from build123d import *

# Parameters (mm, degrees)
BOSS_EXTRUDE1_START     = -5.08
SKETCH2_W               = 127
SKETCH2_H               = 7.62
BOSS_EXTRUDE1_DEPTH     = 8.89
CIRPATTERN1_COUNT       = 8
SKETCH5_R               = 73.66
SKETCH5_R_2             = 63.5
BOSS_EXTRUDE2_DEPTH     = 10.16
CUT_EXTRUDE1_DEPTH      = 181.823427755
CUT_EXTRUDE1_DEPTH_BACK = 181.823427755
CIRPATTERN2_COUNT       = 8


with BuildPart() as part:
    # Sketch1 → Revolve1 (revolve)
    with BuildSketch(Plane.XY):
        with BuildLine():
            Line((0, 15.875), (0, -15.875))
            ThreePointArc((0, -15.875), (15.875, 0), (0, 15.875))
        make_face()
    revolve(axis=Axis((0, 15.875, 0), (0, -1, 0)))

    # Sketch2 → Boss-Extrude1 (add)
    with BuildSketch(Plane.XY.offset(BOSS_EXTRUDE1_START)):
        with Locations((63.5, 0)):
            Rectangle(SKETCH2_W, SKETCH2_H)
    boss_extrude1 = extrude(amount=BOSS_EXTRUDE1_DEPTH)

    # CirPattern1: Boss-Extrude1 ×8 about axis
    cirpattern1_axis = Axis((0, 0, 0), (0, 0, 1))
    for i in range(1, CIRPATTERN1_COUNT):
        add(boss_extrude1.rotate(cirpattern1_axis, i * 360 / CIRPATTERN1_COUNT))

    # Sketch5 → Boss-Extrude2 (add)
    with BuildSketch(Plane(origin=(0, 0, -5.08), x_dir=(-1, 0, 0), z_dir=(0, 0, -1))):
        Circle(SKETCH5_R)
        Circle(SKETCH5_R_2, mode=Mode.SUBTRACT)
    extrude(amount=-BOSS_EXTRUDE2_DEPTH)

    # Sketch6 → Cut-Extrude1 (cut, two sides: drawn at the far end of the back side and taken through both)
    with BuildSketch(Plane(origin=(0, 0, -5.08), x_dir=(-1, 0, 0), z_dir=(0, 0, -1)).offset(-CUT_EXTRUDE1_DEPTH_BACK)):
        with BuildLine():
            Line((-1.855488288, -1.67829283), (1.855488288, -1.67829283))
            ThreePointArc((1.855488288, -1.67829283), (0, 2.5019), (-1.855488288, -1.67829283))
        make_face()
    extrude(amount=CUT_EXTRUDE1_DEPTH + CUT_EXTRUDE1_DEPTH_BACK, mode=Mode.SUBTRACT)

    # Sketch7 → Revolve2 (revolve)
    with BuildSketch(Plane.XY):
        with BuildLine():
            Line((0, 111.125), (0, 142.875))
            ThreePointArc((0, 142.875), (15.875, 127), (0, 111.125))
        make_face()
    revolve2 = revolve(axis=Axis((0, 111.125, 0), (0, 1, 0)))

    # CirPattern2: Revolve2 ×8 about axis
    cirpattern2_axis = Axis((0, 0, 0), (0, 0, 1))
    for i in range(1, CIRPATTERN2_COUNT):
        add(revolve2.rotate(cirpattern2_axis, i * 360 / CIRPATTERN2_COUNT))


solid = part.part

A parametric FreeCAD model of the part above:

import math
import FreeCAD as App
import Part
import Sketcher
Q = App.Units.Quantity


def add_polygon(sketch, points):
    """Adds a closed chain of lines whose ends are joined by coincident constraints."""
    first, n = sketch.GeometryCount, len(points)
    for a, b in zip(points, points[1:] + points[:1]):
        sketch.addGeometry(Part.LineSegment(App.Vector(*a, 0), App.Vector(*b, 0)), False)
    for i in range(n):
        sketch.addConstraint(Sketcher.Constraint("Coincident", first + i, 2, first + (i + 1) % n, 1))

doc = App.newDocument("Part")
body = doc.addObject("PartDesign::Body", "Body")

sketch1 = body.newObject("Sketcher::SketchObject", "Sketch")
sketch1.AttachmentSupport = (doc.getObject("XY_Plane"), [""])
sketch1.MapMode = "FlatFace"
sketch1.addGeometry(Part.LineSegment(App.Vector(0, 16, 0), App.Vector(0, -16, 0)), False)
sketch1.addGeometry(Part.ArcOfCircle(Part.Circle(App.Vector(0, 0, 0), App.Vector(0, 0, 1), 16), math.radians(-90), math.radians(90)), False)
sketch1.addConstraint(Sketcher.Constraint("Coincident", 0, 1, 1, 2))
sketch1.addConstraint(Sketcher.Constraint("Coincident", 1, 1, 0, 2))
sketch1.addConstraint(Sketcher.Constraint("Vertical", 0))
sketch1.addConstraint(Sketcher.Constraint("Coincident", 1, 3, -1, 1))
sketch1.addConstraint(Sketcher.Constraint("PointOnObject", 0, 1, -2))
sketch1.addConstraint(Sketcher.Constraint("Radius", 1, Q("0.625 in")))
revolution = body.newObject("PartDesign::Revolution", "Revolution")
revolution.Profile = sketch1
revolution.ReferenceAxis = (sketch1, ["V_Axis"])
revolution.Angle = 360

sketch2 = body.newObject("Sketcher::SketchObject", "Sketch001")
sketch2.AttachmentSupport = (doc.getObject("XY_Plane"), [""])
sketch2.MapMode = "FlatFace"
sketch2.AttachmentOffset = App.Placement(App.Vector(0, 0, -0.2 * 25.4), App.Rotation())
add_polygon(sketch2, [(0, 4), (0, -4), (127, -4), (127, 4)])
sketch2.addConstraint(Sketcher.Constraint("Vertical", 0))
sketch2.addConstraint(Sketcher.Constraint("Horizontal", 1))
sketch2.addConstraint(Sketcher.Constraint("Vertical", 2))
sketch2.addConstraint(Sketcher.Constraint("Horizontal", 3))
sketch2.addConstraint(Sketcher.Constraint("Symmetric", 0, 2, 3, 2, -1, 1))
sketch2.addConstraint(Sketcher.Constraint("DistanceX", 1, 1, 1, 2, Q("5 in")))
sketch2.addConstraint(Sketcher.Constraint("DistanceY", 0, 2, 0, 1, Q("0.3 in")))
pad1 = body.newObject("PartDesign::Pad", "Pad")
pad1.Profile = sketch2
pad1.Length = Q("0.35 in")
doc.recompute()

polarpattern = body.newObject("PartDesign::PolarPattern", "PolarPattern")
polarpattern.Originals = [pad1]
polarpattern.Axis = (doc.getObject("Z_Axis"), [""])
polarpattern.Angle = 360
polarpattern.Occurrences = 8
body.Tip = polarpattern

sketch3 = body.newObject("Sketcher::SketchObject", "Sketch002")
sketch3.AttachmentSupport = (doc.getObject("XY_Plane"), [""])
sketch3.MapMode = "FlatFace"
sketch3.AttachmentOffset = App.Placement(App.Vector(0, 0, -0.2 * 25.4), App.Rotation())
sketch3.addGeometry(Part.Circle(App.Vector(0, 0, 0), App.Vector(0, 0, 1), 74), False)
sketch3.addGeometry(Part.Circle(App.Vector(0, 0, 0), App.Vector(0, 0, 1), 64), False)
sketch3.addConstraint(Sketcher.Constraint("Coincident", 0, 3, -1, 1))
sketch3.addConstraint(Sketcher.Constraint("Coincident", 1, 3, -1, 1))
sketch3.addConstraint(Sketcher.Constraint("Diameter", 1, Q("5 in")))
sketch3.addConstraint(Sketcher.Constraint("Diameter", 0, Q("5.8 in")))
pad2 = body.newObject("PartDesign::Pad", "Pad001")
pad2.Profile = sketch3
pad2.Length = Q("0.4 in")

sketch4 = body.newObject("Sketcher::SketchObject", "Sketch003")
sketch4.AttachmentSupport = (doc.getObject("XY_Plane"), [""])
sketch4.MapMode = "FlatFace"
sketch4.AttachmentOffset = App.Placement(App.Vector(0, 0, -0.2 * 25.4), App.Rotation())
sketch4.addGeometry(Part.LineSegment(App.Vector(1.9, -1.7, 0), App.Vector(-1.9, -1.7, 0)), False)
sketch4.addGeometry(Part.ArcOfCircle(Part.Circle(App.Vector(0, 0, 0), App.Vector(0, 0, 1), 2.5), math.radians(-42), math.radians(222)), False)
sketch4.addConstraint(Sketcher.Constraint("Coincident", 0, 1, 1, 1))
sketch4.addConstraint(Sketcher.Constraint("Coincident", 1, 2, 0, 2))
sketch4.addConstraint(Sketcher.Constraint("Horizontal", 0))
sketch4.addConstraint(Sketcher.Constraint("Coincident", 1, 3, -1, 1))
sketch4.addConstraint(Sketcher.Constraint("Radius", 1, Q("0.0985 in")))
sketch4.addConstraint(Sketcher.Constraint("DistanceX", 0, 2, 0, 1, Q("3.710977 mm")))
pocket1 = body.newObject("PartDesign::Pocket", "Pocket")
pocket1.Profile = sketch4
pocket1.Type = "ThroughAll"
pocket1.Midplane = True

sketch5 = body.newObject("Sketcher::SketchObject", "Sketch004")
sketch5.AttachmentSupport = (doc.getObject("XY_Plane"), [""])
sketch5.MapMode = "FlatFace"
sketch5.addGeometry(Part.LineSegment(App.Vector(0, 143, 0), App.Vector(0, 111, 0)), False)
sketch5.addGeometry(Part.ArcOfCircle(Part.Circle(App.Vector(0, 127, 0), App.Vector(0, 0, 1), 16), math.radians(-90), math.radians(90)), False)
sketch5.addConstraint(Sketcher.Constraint("Coincident", 0, 1, 1, 2))
sketch5.addConstraint(Sketcher.Constraint("Coincident", 1, 1, 0, 2))
sketch5.addConstraint(Sketcher.Constraint("Vertical", 0))
sketch5.addConstraint(Sketcher.Constraint("PointOnObject", 1, 3, -2))
sketch5.addConstraint(Sketcher.Constraint("PointOnObject", 0, 1, -2))
sketch5.addConstraint(Sketcher.Constraint("DistanceY", -1, 1, 1, 3, Q("5 in")))
sketch5.addConstraint(Sketcher.Constraint("Radius", 1, Q("0.625 in")))
revolution2 = body.newObject("PartDesign::Revolution", "Revolution001")
revolution2.Profile = sketch5
revolution2.ReferenceAxis = (sketch5, ["V_Axis"])
revolution2.Angle = 360
doc.recompute()

polarpattern2 = body.newObject("PartDesign::PolarPattern", "PolarPattern001")
polarpattern2.Originals = [revolution2]
polarpattern2.Axis = (doc.getObject("Z_Axis"), [""])
polarpattern2.Angle = 360
polarpattern2.Occurrences = 8
body.Tip = polarpattern2

doc.recompute()
